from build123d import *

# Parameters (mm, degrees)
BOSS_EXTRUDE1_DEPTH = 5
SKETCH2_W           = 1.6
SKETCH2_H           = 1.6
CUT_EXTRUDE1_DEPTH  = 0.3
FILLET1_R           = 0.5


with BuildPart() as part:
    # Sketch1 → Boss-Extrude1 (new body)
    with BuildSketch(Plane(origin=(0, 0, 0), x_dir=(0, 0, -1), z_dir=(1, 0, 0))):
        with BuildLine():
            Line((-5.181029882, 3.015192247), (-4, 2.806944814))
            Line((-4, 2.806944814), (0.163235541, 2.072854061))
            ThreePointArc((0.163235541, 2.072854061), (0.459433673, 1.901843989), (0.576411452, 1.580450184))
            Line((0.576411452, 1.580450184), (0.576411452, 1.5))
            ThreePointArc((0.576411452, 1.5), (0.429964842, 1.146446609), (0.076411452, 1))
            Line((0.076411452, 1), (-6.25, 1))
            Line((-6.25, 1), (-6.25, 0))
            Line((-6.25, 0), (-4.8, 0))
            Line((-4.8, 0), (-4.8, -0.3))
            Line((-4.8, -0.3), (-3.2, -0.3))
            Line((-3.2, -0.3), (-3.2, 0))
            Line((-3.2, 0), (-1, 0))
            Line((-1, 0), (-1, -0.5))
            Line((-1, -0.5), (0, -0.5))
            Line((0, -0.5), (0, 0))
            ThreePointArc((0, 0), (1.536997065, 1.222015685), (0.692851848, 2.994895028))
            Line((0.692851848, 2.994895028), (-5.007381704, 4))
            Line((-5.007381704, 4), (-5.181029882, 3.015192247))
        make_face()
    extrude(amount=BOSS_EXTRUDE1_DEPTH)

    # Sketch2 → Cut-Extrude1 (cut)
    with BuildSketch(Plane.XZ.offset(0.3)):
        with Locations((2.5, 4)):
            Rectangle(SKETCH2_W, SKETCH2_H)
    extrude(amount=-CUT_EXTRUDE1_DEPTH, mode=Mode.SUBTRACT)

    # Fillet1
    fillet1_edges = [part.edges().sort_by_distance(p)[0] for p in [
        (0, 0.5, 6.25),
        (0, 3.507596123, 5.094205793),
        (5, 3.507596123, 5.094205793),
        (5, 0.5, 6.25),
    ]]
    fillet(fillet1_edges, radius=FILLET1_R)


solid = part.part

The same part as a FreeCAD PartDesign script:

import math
import FreeCAD as App
import Part
import Sketcher
from FreeCAD import Vector
Q = App.Units.Quantity


def edges_at(feature, points):
    """Names of the edges that pass closest to the given points."""
    edges = feature.Shape.Edges
    near = lambda p: min(range(len(edges)), key=lambda i: edges[i].distToShape(Part.Vertex(*p))[0])
    return sorted({f"Edge{near(p) + 1}" for p in points})

doc = App.newDocument("Part")
params = doc.addObject("Spreadsheet::Sheet", "Params")
for row, (alias, value) in enumerate([
    ("sketch1_radius", "0.5 mm"),
    ("sketch1_width", "1 mm"),
    ("sketch1_length", "1 mm"),
    ("sketch1_width2", "0.3 mm"),
    ("sketch1_width3", "0.5 mm"),
    ("pad1_length", "5 mm"),
    ("sketch2_width", "1.6 mm"),
    ("pocket1_length", "0.3 mm"),
    ("fillet_radius", "0.5 mm"),
], start=1):
    params.set(f"A{row}", alias)
    params.set(f"B{row}", "=" + value)
    params.setAlias(f"B{row}", alias)

body = doc.addObject("PartDesign::Body", "Body")

# Sketch on YZ plane
sketch1 = doc.addObject("Sketcher::SketchObject", "Sketch")
body.addObject(sketch1)
sketch1.AttachmentSupport = (doc.YZ_Plane, [""])
sketch1.MapMode = "FlatFace"
sketch1.addGeometry([
    Part.LineSegment(Vector(3.02, 5.18, 0), Vector(2.81, 4, 0)),  # 0
    Part.LineSegment(Vector(2.81, 4, 0), Vector(2.07, -0.16, 0)),  # 1
    Part.ArcOfCircle(Part.Circle(Vector(1.58, -0.08, 0), Vector(0, 0, 1), 0.5), math.radians(-90), math.radians(-10)),  # 2
    Part.LineSegment(Vector(1.58, -0.58, 0), Vector(1.5, -0.58, 0)),  # 3
    Part.ArcOfCircle(Part.Circle(Vector(1.5, -0.08, 0), Vector(0, 0, 1), 0.5), math.radians(180), math.radians(270)),  # 4
    Part.LineSegment(Vector(1, -0.08, 0), Vector(1, 6.25, 0)),  # 5
    Part.LineSegment(Vector(1, 6.25, 0), Vector(0, 6.25, 0)),  # 6
    Part.LineSegment(Vector(0, 6.25, 0), Vector(0, 4.8, 0)),  # 7
    Part.LineSegment(Vector(0, 4.8, 0), Vector(-0.3, 4.8, 0)),  # 8
    Part.LineSegment(Vector(-0.3, 4.8, 0), Vector(-0.3, 3.2, 0)),  # 9
    Part.LineSegment(Vector(-0.3, 3.2, 0), Vector(0, 3.2, 0)),  # 10
    Part.LineSegment(Vector(0, 3.2, 0), Vector(0, 1, 0)),  # 11
    Part.LineSegment(Vector(0, 1, 0), Vector(-0.5, 1, 0)),  # 12
    Part.LineSegment(Vector(-0.5, 1, 0), Vector(-0.5, 0, 0)),  # 13
    Part.LineSegment(Vector(-0.5, 0, 0), Vector(0, 0, 0)),  # 14
    Part.ArcOfCircle(Part.Circle(Vector(1.58, 0, 0), Vector(0, 0, 1), 1.58), math.radians(180), math.radians(334)),  # 15
    Part.LineSegment(Vector(2.99, -0.69, 0), Vector(4, 5.01, 0)),  # 16
    Part.LineSegment(Vector(4, 5.01, 0), Vector(3.02, 5.18, 0)),  # 17
], False)
sketch1.addConstraint([
    Sketcher.Constraint("Coincident", 0, 2, 1, 1),
    Sketcher.Constraint("Tangent", 1, 2, 2, 2),
    Sketcher.Constraint("Tangent", 2, 1, 3, 1),
    Sketcher.Constraint("Tangent", 3, 2, 4, 2),
    Sketcher.Constraint("Tangent", 4, 1, 5, 1),
    Sketcher.Constraint("Coincident", 5, 2, 6, 1),
    Sketcher.Constraint("Coincident", 6, 2, 7, 1),
    Sketcher.Constraint("Coincident", 7, 2, 8, 1),
    Sketcher.Constraint("Coincident", 8, 2, 9, 1),
    Sketcher.Constraint("Coincident", 9, 2, 10, 1),
    Sketcher.Constraint("Coincident", 10, 2, 11, 1),
    Sketcher.Constraint("Coincident", 11, 2, 12, 1),
    Sketcher.Constraint("Coincident", 12, 2, 13, 1),
    Sketcher.Constraint("Coincident", 13, 2, 14, 1),
    Sketcher.Constraint("Coincident", 14, 2, 15, 1),
    Sketcher.Constraint("Coincident", 15, 2, 16, 1),
    Sketcher.Constraint("Coincident", 16, 2, 17, 1),
    Sketcher.Constraint("Coincident", 17, 2, 0, 1),
    Sketcher.Constraint("Horizontal", 3),
    Sketcher.Constraint("Vertical", 5),
    Sketcher.Constraint("Horizontal", 6),
    Sketcher.Constraint("Vertical", 7),
    Sketcher.Constraint("Horizontal", 8),
    Sketcher.Constraint("Vertical", 9),
    Sketcher.Constraint("Horizontal", 10),
    Sketcher.Constraint("Vertical", 11),
    Sketcher.Constraint("Horizontal", 12),
    Sketcher.Constraint("Vertical", 13),
    Sketcher.Constraint("Horizontal", 14),
    Sketcher.Constraint("Coincident", 14, 2, -1, 1),
    Sketcher.Constraint("Equal", 2, 4),
    Sketcher.Constraint("PointOnObject", 15, 3, -1),
    Sketcher.Constraint("PointOnObject", 6, 2, -2),
    Sketcher.Constraint("PointOnObject", 10, 2, -2),
    Sketcher.Constraint("Parallel", 0, 1),
    Sketcher.Constraint("Parallel", 1, 16),
    Sketcher.Constraint("Perpendicular", 16, 17),
    Sketcher.Constraint("Equal", 6, 13),
    Sketcher.Constraint("Radius", 2, 0.5),
    Sketcher.Constraint("DistanceX", 6, 2, 6, 1, 1.0),
    Sketcher.Constraint("Angle", 0, Q("-100 deg")),
    Sketcher.Constraint("Distance", 17, 1.0),
    Sketcher.Constraint("DistanceX", 8, 2, 8, 1, 0.3),
    Sketcher.Constraint("DistanceX", 12, 2, 12, 1, 0.5),
    Sketcher.Constraint("DistanceY", 9, 2, 9, 1, 1.6),
    Sketcher.Constraint("DistanceY", 11, 2, 11, 1, 2.2),
    Sketcher.Constraint("DistanceY", -1, 1, 0, 2, 4.0),
    Sketcher.Constraint("DistanceX", -1, 1, 16, 2, 4.0),
    Sketcher.Constraint("DistanceY", 7, 2, 7, 1, 1.45),
    Sketcher.Constraint("Radius", 15, 1.577591),
    Sketcher.Constraint("DistanceX", 3, 2, 3, 1, 0.08045),
    Sketcher.Constraint("DistanceY", 5, 1, 5, 2, 6.326411),
])
sketch1.setExpression("Constraints[38]", "Params.sketch1_radius")
sketch1.setExpression("Constraints[39]", "Params.sketch1_width")
sketch1.setExpression("Constraints[41]", "Params.sketch1_length")
sketch1.setExpression("Constraints[42]", "Params.sketch1_width2")
sketch1.setExpression("Constraints[43]", "Params.sketch1_width3")
pad1 = doc.addObject("PartDesign::Pad", "Pad")
body.addObject(pad1)
pad1.Profile = sketch1
pad1.setExpression("Length", "Params.pad1_length")

# Sketch on XZ plane
sketch2 = doc.addObject("Sketcher::SketchObject", "Sketch001")
body.addObject(sketch2)
sketch2.AttachmentSupport = (doc.XZ_Plane, [""])
sketch2.MapMode = "FlatFace"
sketch2.AttachmentOffset = App.Placement(Vector(0, 0, 0.3), App.Rotation())
sketch2.addGeometry([
    Part.LineSegment(Vector(1.7, 4.8, 0), Vector(1.7, 3.2, 0)),
    Part.LineSegment(Vector(1.7, 3.2, 0), Vector(3.3, 3.2, 0)),
    Part.LineSegment(Vector(3.3, 3.2, 0), Vector(3.3, 4.8, 0)),
    Part.LineSegment(Vector(3.3, 4.8, 0), Vector(1.7, 4.8, 0)),
], False)
sketch2.addConstraint([
    Sketcher.Constraint("Coincident", 0, 2, 1, 1),
    Sketcher.Constraint("Coincident", 1, 2, 2, 1),
    Sketcher.Constraint("Coincident", 2, 2, 3, 1),
    Sketcher.Constraint("Coincident", 3, 2, 0, 1),
    Sketcher.Constraint("Vertical", 0),
    Sketcher.Constraint("Horizontal", 1),
    Sketcher.Constraint("Vertical", 2),
    Sketcher.Constraint("Horizontal", 3),
    Sketcher.Constraint("Equal", 3, 0),
    Sketcher.Constraint("DistanceX", 1, 1, 1, 2, 1.6),
    Sketcher.Constraint("DistanceX", -1, 1, 0, 2, 1.7),
    Sketcher.Constraint("DistanceY", -1, 1, 0, 2, 3.2),
])
sketch2.setExpression("Constraints[9]", "Params.sketch2_width")
pocket1 = doc.addObject("PartDesign::Pocket", "Pocket")
body.addObject(pocket1)
pocket1.Profile = sketch2
pocket1.setExpression("Length", "Params.pocket1_length")
doc.recompute()

fillet = doc.addObject("PartDesign::Fillet", "Fillet")
body.addObject(fillet)
fillet.Base = (pocket1, edges_at(pocket1, [
    (0, 0.5, 6.25),
    (0, 3.508, 5.094),
    (5, 3.508, 5.094),
    (5, 0.5, 6.25),
]))
fillet.setExpression("Radius", "Params.fillet_radius")

doc.recompute()
